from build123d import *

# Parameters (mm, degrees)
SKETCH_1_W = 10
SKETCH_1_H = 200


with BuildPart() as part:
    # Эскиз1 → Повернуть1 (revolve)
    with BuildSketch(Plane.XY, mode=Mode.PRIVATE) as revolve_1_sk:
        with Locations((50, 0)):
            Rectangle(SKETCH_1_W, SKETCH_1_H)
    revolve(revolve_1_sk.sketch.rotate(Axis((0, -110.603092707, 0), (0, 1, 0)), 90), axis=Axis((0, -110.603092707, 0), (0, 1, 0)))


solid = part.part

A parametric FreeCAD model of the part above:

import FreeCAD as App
import Part
import Sketcher
from FreeCAD import Vector
Q = App.Units.Quantity


def add_polygon(sketch, points):
    """Adds a closed chain of lines whose ends are joined by coincident constraints."""
    first, n = sketch.GeometryCount, len(points)
    for a, b in zip(points, points[1:] + points[:1]):
        sketch.addGeometry(Part.LineSegment(App.Vector(*a, 0), App.Vector(*b, 0)), False)
    for i in range(n):
        sketch.addConstraint(Sketcher.Constraint("Coincident", first + i, 2, first + (i + 1) % n, 1))

doc = App.newDocument("Part")
body = doc.addObject("PartDesign::Body", "Body")

# Sketch on XY plane
sketch1 = body.newObject("Sketcher::SketchObject", "Sketch")
sketch1.AttachmentSupport = (doc.getObject("XY_Plane"), [""])
sketch1.MapMode = "FlatFace"
add_polygon(sketch1, [(45, 100), (45, -100), (55, -100), (55, 100)])  # lines 0-3
sketch1.addConstraint([
    Sketcher.Constraint("Vertical", 0),
    Sketcher.Constraint("Horizontal", 1),
    Sketcher.Constraint("Vertical", 2),
    Sketcher.Constraint("Horizontal", 3),
    Sketcher.Constraint("DistanceX", 1, 1, 1, 2, Q("10 mm")),
    Sketcher.Constraint("DistanceY", 0, 2, 0, 1, Q("200 mm")),
    Sketcher.Constraint("DistanceX", -1, 1, 0, 2, Q("45 mm")),
    Sketcher.Constraint("DistanceY", 0, 2, -1, 1, Q("100 mm")),
])
revolution = body.newObject("PartDesign::Revolution", "Revolution")
revolution.Profile = sketch1
revolution.ReferenceAxis = (sketch1, ["V_Axis"])
revolution.Angle = 360

doc.recompute()
